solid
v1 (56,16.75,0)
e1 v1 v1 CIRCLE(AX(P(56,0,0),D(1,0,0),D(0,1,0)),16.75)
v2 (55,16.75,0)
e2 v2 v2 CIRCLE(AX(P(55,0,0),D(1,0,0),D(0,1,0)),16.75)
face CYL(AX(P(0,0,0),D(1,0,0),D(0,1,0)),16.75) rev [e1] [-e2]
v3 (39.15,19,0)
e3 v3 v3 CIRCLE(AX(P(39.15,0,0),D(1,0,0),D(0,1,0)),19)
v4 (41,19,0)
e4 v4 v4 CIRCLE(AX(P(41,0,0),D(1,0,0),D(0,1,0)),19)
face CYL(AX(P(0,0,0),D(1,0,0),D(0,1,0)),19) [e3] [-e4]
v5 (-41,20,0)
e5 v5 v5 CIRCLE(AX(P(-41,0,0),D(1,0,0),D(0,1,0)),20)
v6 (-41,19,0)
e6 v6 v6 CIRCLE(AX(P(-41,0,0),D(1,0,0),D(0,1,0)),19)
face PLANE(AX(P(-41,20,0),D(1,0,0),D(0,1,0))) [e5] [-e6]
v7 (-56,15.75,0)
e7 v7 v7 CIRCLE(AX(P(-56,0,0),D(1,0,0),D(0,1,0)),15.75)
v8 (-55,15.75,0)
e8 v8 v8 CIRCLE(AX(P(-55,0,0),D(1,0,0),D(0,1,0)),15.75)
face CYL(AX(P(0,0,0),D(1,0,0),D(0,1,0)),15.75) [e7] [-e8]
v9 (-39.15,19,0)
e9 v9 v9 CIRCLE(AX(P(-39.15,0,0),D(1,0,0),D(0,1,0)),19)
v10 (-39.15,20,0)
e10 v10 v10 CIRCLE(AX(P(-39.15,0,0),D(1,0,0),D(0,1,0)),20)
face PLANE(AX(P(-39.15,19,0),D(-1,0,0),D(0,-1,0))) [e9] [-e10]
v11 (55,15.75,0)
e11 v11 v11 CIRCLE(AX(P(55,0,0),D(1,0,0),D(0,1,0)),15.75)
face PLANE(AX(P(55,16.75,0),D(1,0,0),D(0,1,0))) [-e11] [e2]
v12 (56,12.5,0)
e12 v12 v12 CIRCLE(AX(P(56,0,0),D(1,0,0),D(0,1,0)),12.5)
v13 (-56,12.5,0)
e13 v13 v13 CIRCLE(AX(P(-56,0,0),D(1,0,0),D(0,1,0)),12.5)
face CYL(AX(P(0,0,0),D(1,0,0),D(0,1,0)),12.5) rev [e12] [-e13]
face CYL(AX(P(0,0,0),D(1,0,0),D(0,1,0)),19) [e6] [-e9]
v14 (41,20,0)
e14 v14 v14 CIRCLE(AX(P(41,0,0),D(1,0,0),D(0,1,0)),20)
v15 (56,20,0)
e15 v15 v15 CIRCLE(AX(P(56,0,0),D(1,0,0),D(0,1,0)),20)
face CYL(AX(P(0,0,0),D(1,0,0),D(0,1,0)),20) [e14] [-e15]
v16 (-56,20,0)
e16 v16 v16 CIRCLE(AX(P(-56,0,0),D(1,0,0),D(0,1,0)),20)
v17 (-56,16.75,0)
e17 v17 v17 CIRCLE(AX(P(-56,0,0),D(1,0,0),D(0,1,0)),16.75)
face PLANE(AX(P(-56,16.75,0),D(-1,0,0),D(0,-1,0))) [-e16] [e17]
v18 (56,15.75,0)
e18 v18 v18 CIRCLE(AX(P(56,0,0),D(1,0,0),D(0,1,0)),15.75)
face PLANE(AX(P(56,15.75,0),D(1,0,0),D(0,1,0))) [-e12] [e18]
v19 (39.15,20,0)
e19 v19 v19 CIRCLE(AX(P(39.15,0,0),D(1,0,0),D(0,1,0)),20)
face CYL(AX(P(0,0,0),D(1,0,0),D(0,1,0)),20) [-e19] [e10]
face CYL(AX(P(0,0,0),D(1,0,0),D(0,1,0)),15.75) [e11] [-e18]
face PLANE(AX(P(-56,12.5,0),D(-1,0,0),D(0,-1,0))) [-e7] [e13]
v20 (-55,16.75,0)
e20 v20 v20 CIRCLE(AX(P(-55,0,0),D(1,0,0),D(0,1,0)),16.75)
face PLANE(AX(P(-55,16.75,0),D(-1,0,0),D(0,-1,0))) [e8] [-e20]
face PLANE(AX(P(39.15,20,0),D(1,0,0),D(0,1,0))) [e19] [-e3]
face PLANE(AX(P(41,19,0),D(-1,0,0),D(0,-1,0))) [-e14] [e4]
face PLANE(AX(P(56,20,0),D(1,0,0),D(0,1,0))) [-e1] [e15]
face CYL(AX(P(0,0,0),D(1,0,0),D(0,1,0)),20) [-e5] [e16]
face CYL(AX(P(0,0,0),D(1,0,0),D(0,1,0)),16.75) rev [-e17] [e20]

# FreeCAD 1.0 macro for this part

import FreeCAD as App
import Part
import Sketcher
from FreeCAD import Vector
Q = App.Units.Quantity

doc = App.newDocument("Part")
body = doc.addObject("PartDesign::Body", "Body")

sketch1 = body.newObject("Sketcher::SketchObject", "Sketch")
sketch1.AttachmentSupport = (doc.getObject("XY_Plane"), [""])
sketch1.MapMode = "FlatFace"
sketch1.addGeometry(Part.LineSegment(Vector(-41, 20, 0), Vector(-56, 20, 0)), False)
sketch1.addGeometry(Part.LineSegment(Vector(-56, 20, 0), Vector(-56, 16.8, 0)), False)
sketch1.addGeometry(Part.LineSegment(Vector(-56, 16.8, 0), Vector(-55, 16.8, 0)), False)
sketch1.addGeometry(Part.LineSegment(Vector(-55, 16.8, 0), Vector(-55, 15.8, 0)), False)
sketch1.addGeometry(Part.LineSegment(Vector(-55, 15.8, 0), Vector(-56, 15.8, 0)), False)
sketch1.addGeometry(Part.LineSegment(Vector(-56, 15.8, 0), Vector(-56, 12.5, 0)), False)
sketch1.addGeometry(Part.LineSegment(Vector(-56, 12.5, 0), Vector(56, 12.5, 0)), False)
sketch1.addGeometry(Part.LineSegment(Vector(56, 12.5, 0), Vector(56, 15.8, 0)), False)
sketch1.addGeometry(Part.LineSegment(Vector(56, 15.8, 0), Vector(55, 15.8, 0)), False)
sketch1.addGeometry(Part.LineSegment(Vector(55, 15.8, 0), Vector(55, 16.8, 0)), False)
sketch1.addGeometry(Part.LineSegment(Vector(55, 16.8, 0), Vector(56, 16.8, 0)), False)
sketch1.addGeometry(Part.LineSegment(Vector(56, 16.8, 0), Vector(56, 20, 0)), False)
sketch1.addGeometry(Part.LineSegment(Vector(56, 20, 0), Vector(41, 20, 0)), False)
sketch1.addGeometry(Part.LineSegment(Vector(41, 20, 0), Vector(41, 19, 0)), False)
sketch1.addGeometry(Part.LineSegment(Vector(41, 19, 0), Vector(39.1, 19, 0)), False)
sketch1.addGeometry(Part.LineSegment(Vector(39.1, 19, 0), Vector(39.1, 20, 0)), False)
sketch1.addGeometry(Part.LineSegment(Vector(39.1, 20, 0), Vector(-39.1, 20, 0)), False)
sketch1.addGeometry(Part.LineSegment(Vector(-39.1, 20, 0), Vector(-39.1, 19, 0)), False)
sketch1.addGeometry(Part.LineSegment(Vector(-39.1, 19, 0), Vector(-41, 19, 0)), False)
sketch1.addGeometry(Part.LineSegment(Vector(-41, 19, 0), Vector(-41, 20, 0)), False)
sketch1.addConstraint(Sketcher.Constraint("Coincident", 0, 2, 1, 1))
sketch1.addConstraint(Sketcher.Constraint("Coincident", 1, 2, 2, 1))
sketch1.addConstraint(Sketcher.Constraint("Coincident", 2, 2, 3, 1))
sketch1.addConstraint(Sketcher.Constraint("Coincident", 3, 2, 4, 1))
sketch1.addConstraint(Sketcher.Constraint("Coincident", 4, 2, 5, 1))
sketch1.addConstraint(Sketcher.Constraint("Coincident", 5, 2, 6, 1))
sketch1.addConstraint(Sketcher.Constraint("Coincident", 6, 2, 7, 1))
sketch1.addConstraint(Sketcher.Constraint("Coincident", 7, 2, 8, 1))
sketch1.addConstraint(Sketcher.Constraint("Coincident", 8, 2, 9, 1))
sketch1.addConstraint(Sketcher.Constraint("Coincident", 9, 2, 10, 1))
sketch1.addConstraint(Sketcher.Constraint("Coincident", 10, 2, 11, 1))
sketch1.addConstraint(Sketcher.Constraint("Coincident", 11, 2, 12, 1))
sketch1.addConstraint(Sketcher.Constraint("Coincident", 12, 2, 13, 1))
sketch1.addConstraint(Sketcher.Constraint("Coincident", 13, 2, 14, 1))
sketch1.addConstraint(Sketcher.Constraint("Coincident", 14, 2, 15, 1))
sketch1.addConstraint(Sketcher.Constraint("Coincident", 15, 2, 16, 1))
sketch1.addConstraint(Sketcher.Constraint("Coincident", 16, 2, 17, 1))
sketch1.addConstraint(Sketcher.Constraint("Coincident", 17, 2, 18, 1))
sketch1.addConstraint(Sketcher.Constraint("Coincident", 18, 2, 19, 1))
sketch1.addConstraint(Sketcher.Constraint("Coincident", 19, 2, 0, 1))
sketch1.addConstraint(Sketcher.Constraint("Horizontal", 0))
sketch1.addConstraint(Sketcher.Constraint("Vertical", 1))
sketch1.addConstraint(Sketcher.Constraint("Horizontal", 2))
sketch1.addConstraint(Sketcher.Constraint("Vertical", 3))
sketch1.addConstraint(Sketcher.Constraint("Horizontal", 4))
sketch1.addConstraint(Sketcher.Constraint("Vertical", 5))
sketch1.addConstraint(Sketcher.Constraint("Horizontal", 6))
sketch1.addConstraint(Sketcher.Constraint("Vertical", 7))
sketch1.addConstraint(Sketcher.Constraint("Horizontal", 8))
sketch1.addConstraint(Sketcher.Constraint("Vertical", 9))
sketch1.addConstraint(Sketcher.Constraint("Horizontal", 10))
sketch1.addConstraint(Sketcher.Constraint("Vertical", 11))
sketch1.addConstraint(Sketcher.Constraint("Horizontal", 12))
sketch1.addConstraint(Sketcher.Constraint("Vertical", 13))
sketch1.addConstraint(Sketcher.Constraint("Horizontal", 14))
sketch1.addConstraint(Sketcher.Constraint("Vertical", 15))
sketch1.addConstraint(Sketcher.Constraint("Horizontal", 16))
sketch1.addConstraint(Sketcher.Constraint("Vertical", 17))
sketch1.addConstraint(Sketcher.Constraint("Horizontal", 18))
sketch1.addConstraint(Sketcher.Constraint("Vertical", 19))
sketch1.addConstraint(Sketcher.Constraint("Symmetric", 4, 2, 7, 2, -2))
sketch1.addConstraint(Sketcher.Constraint("Symmetric", 2, 2, 9, 2, -2))
sketch1.addConstraint(Sketcher.Constraint("Symmetric", 0, 2, 11, 2, -2))
sketch1.addConstraint(Sketcher.Constraint("Symmetric", 14, 2, 17, 2, -2))
sketch1.addConstraint(Sketcher.Constraint("Horizontal", 12, 2, 15, 2))
sketch1.addConstraint(Sketcher.Constraint("Vertical", 1, 2, 4, 2))
sketch1.addConstraint(Sketcher.Constraint("Equal", 0, 12))
sketch1.addConstraint(Sketcher.Constraint("Equal", 10, 3))
sketch1.addConstraint(Sketcher.Constraint("Equal", 1, 5))
sketch1.addConstraint(Sketcher.Constraint("Equal", 9, 13))
sketch1.addConstraint(Sketcher.Constraint("DistanceX", 0, 2, 0, 1, Q("15 mm")))
sketch1.addConstraint(Sketcher.Constraint("DistanceX", 2, 1, 2, 2, Q("1 mm")))
sketch1.addConstraint(Sketcher.Constraint("DistanceX", 6, 1, 6, 2, Q("112 mm")))
sketch1.addConstraint(Sketcher.Constraint("DistanceX", 16, 2, 16, 1, Q("78.3 mm")))
sketch1.addConstraint(Sketcher.Constraint("DistanceY", -1, 1, 0, 2, Q("20 mm")))
sketch1.addConstraint(Sketcher.Constraint("DistanceY", 1, 2, 1, 1, Q("3.25 mm")))
revolution = body.newObject("PartDesign::Revolution", "Revolution")
revolution.Profile = sketch1
revolution.ReferenceAxis = (sketch1, ["H_Axis"])
revolution.Angle = 360

doc.recompute()
